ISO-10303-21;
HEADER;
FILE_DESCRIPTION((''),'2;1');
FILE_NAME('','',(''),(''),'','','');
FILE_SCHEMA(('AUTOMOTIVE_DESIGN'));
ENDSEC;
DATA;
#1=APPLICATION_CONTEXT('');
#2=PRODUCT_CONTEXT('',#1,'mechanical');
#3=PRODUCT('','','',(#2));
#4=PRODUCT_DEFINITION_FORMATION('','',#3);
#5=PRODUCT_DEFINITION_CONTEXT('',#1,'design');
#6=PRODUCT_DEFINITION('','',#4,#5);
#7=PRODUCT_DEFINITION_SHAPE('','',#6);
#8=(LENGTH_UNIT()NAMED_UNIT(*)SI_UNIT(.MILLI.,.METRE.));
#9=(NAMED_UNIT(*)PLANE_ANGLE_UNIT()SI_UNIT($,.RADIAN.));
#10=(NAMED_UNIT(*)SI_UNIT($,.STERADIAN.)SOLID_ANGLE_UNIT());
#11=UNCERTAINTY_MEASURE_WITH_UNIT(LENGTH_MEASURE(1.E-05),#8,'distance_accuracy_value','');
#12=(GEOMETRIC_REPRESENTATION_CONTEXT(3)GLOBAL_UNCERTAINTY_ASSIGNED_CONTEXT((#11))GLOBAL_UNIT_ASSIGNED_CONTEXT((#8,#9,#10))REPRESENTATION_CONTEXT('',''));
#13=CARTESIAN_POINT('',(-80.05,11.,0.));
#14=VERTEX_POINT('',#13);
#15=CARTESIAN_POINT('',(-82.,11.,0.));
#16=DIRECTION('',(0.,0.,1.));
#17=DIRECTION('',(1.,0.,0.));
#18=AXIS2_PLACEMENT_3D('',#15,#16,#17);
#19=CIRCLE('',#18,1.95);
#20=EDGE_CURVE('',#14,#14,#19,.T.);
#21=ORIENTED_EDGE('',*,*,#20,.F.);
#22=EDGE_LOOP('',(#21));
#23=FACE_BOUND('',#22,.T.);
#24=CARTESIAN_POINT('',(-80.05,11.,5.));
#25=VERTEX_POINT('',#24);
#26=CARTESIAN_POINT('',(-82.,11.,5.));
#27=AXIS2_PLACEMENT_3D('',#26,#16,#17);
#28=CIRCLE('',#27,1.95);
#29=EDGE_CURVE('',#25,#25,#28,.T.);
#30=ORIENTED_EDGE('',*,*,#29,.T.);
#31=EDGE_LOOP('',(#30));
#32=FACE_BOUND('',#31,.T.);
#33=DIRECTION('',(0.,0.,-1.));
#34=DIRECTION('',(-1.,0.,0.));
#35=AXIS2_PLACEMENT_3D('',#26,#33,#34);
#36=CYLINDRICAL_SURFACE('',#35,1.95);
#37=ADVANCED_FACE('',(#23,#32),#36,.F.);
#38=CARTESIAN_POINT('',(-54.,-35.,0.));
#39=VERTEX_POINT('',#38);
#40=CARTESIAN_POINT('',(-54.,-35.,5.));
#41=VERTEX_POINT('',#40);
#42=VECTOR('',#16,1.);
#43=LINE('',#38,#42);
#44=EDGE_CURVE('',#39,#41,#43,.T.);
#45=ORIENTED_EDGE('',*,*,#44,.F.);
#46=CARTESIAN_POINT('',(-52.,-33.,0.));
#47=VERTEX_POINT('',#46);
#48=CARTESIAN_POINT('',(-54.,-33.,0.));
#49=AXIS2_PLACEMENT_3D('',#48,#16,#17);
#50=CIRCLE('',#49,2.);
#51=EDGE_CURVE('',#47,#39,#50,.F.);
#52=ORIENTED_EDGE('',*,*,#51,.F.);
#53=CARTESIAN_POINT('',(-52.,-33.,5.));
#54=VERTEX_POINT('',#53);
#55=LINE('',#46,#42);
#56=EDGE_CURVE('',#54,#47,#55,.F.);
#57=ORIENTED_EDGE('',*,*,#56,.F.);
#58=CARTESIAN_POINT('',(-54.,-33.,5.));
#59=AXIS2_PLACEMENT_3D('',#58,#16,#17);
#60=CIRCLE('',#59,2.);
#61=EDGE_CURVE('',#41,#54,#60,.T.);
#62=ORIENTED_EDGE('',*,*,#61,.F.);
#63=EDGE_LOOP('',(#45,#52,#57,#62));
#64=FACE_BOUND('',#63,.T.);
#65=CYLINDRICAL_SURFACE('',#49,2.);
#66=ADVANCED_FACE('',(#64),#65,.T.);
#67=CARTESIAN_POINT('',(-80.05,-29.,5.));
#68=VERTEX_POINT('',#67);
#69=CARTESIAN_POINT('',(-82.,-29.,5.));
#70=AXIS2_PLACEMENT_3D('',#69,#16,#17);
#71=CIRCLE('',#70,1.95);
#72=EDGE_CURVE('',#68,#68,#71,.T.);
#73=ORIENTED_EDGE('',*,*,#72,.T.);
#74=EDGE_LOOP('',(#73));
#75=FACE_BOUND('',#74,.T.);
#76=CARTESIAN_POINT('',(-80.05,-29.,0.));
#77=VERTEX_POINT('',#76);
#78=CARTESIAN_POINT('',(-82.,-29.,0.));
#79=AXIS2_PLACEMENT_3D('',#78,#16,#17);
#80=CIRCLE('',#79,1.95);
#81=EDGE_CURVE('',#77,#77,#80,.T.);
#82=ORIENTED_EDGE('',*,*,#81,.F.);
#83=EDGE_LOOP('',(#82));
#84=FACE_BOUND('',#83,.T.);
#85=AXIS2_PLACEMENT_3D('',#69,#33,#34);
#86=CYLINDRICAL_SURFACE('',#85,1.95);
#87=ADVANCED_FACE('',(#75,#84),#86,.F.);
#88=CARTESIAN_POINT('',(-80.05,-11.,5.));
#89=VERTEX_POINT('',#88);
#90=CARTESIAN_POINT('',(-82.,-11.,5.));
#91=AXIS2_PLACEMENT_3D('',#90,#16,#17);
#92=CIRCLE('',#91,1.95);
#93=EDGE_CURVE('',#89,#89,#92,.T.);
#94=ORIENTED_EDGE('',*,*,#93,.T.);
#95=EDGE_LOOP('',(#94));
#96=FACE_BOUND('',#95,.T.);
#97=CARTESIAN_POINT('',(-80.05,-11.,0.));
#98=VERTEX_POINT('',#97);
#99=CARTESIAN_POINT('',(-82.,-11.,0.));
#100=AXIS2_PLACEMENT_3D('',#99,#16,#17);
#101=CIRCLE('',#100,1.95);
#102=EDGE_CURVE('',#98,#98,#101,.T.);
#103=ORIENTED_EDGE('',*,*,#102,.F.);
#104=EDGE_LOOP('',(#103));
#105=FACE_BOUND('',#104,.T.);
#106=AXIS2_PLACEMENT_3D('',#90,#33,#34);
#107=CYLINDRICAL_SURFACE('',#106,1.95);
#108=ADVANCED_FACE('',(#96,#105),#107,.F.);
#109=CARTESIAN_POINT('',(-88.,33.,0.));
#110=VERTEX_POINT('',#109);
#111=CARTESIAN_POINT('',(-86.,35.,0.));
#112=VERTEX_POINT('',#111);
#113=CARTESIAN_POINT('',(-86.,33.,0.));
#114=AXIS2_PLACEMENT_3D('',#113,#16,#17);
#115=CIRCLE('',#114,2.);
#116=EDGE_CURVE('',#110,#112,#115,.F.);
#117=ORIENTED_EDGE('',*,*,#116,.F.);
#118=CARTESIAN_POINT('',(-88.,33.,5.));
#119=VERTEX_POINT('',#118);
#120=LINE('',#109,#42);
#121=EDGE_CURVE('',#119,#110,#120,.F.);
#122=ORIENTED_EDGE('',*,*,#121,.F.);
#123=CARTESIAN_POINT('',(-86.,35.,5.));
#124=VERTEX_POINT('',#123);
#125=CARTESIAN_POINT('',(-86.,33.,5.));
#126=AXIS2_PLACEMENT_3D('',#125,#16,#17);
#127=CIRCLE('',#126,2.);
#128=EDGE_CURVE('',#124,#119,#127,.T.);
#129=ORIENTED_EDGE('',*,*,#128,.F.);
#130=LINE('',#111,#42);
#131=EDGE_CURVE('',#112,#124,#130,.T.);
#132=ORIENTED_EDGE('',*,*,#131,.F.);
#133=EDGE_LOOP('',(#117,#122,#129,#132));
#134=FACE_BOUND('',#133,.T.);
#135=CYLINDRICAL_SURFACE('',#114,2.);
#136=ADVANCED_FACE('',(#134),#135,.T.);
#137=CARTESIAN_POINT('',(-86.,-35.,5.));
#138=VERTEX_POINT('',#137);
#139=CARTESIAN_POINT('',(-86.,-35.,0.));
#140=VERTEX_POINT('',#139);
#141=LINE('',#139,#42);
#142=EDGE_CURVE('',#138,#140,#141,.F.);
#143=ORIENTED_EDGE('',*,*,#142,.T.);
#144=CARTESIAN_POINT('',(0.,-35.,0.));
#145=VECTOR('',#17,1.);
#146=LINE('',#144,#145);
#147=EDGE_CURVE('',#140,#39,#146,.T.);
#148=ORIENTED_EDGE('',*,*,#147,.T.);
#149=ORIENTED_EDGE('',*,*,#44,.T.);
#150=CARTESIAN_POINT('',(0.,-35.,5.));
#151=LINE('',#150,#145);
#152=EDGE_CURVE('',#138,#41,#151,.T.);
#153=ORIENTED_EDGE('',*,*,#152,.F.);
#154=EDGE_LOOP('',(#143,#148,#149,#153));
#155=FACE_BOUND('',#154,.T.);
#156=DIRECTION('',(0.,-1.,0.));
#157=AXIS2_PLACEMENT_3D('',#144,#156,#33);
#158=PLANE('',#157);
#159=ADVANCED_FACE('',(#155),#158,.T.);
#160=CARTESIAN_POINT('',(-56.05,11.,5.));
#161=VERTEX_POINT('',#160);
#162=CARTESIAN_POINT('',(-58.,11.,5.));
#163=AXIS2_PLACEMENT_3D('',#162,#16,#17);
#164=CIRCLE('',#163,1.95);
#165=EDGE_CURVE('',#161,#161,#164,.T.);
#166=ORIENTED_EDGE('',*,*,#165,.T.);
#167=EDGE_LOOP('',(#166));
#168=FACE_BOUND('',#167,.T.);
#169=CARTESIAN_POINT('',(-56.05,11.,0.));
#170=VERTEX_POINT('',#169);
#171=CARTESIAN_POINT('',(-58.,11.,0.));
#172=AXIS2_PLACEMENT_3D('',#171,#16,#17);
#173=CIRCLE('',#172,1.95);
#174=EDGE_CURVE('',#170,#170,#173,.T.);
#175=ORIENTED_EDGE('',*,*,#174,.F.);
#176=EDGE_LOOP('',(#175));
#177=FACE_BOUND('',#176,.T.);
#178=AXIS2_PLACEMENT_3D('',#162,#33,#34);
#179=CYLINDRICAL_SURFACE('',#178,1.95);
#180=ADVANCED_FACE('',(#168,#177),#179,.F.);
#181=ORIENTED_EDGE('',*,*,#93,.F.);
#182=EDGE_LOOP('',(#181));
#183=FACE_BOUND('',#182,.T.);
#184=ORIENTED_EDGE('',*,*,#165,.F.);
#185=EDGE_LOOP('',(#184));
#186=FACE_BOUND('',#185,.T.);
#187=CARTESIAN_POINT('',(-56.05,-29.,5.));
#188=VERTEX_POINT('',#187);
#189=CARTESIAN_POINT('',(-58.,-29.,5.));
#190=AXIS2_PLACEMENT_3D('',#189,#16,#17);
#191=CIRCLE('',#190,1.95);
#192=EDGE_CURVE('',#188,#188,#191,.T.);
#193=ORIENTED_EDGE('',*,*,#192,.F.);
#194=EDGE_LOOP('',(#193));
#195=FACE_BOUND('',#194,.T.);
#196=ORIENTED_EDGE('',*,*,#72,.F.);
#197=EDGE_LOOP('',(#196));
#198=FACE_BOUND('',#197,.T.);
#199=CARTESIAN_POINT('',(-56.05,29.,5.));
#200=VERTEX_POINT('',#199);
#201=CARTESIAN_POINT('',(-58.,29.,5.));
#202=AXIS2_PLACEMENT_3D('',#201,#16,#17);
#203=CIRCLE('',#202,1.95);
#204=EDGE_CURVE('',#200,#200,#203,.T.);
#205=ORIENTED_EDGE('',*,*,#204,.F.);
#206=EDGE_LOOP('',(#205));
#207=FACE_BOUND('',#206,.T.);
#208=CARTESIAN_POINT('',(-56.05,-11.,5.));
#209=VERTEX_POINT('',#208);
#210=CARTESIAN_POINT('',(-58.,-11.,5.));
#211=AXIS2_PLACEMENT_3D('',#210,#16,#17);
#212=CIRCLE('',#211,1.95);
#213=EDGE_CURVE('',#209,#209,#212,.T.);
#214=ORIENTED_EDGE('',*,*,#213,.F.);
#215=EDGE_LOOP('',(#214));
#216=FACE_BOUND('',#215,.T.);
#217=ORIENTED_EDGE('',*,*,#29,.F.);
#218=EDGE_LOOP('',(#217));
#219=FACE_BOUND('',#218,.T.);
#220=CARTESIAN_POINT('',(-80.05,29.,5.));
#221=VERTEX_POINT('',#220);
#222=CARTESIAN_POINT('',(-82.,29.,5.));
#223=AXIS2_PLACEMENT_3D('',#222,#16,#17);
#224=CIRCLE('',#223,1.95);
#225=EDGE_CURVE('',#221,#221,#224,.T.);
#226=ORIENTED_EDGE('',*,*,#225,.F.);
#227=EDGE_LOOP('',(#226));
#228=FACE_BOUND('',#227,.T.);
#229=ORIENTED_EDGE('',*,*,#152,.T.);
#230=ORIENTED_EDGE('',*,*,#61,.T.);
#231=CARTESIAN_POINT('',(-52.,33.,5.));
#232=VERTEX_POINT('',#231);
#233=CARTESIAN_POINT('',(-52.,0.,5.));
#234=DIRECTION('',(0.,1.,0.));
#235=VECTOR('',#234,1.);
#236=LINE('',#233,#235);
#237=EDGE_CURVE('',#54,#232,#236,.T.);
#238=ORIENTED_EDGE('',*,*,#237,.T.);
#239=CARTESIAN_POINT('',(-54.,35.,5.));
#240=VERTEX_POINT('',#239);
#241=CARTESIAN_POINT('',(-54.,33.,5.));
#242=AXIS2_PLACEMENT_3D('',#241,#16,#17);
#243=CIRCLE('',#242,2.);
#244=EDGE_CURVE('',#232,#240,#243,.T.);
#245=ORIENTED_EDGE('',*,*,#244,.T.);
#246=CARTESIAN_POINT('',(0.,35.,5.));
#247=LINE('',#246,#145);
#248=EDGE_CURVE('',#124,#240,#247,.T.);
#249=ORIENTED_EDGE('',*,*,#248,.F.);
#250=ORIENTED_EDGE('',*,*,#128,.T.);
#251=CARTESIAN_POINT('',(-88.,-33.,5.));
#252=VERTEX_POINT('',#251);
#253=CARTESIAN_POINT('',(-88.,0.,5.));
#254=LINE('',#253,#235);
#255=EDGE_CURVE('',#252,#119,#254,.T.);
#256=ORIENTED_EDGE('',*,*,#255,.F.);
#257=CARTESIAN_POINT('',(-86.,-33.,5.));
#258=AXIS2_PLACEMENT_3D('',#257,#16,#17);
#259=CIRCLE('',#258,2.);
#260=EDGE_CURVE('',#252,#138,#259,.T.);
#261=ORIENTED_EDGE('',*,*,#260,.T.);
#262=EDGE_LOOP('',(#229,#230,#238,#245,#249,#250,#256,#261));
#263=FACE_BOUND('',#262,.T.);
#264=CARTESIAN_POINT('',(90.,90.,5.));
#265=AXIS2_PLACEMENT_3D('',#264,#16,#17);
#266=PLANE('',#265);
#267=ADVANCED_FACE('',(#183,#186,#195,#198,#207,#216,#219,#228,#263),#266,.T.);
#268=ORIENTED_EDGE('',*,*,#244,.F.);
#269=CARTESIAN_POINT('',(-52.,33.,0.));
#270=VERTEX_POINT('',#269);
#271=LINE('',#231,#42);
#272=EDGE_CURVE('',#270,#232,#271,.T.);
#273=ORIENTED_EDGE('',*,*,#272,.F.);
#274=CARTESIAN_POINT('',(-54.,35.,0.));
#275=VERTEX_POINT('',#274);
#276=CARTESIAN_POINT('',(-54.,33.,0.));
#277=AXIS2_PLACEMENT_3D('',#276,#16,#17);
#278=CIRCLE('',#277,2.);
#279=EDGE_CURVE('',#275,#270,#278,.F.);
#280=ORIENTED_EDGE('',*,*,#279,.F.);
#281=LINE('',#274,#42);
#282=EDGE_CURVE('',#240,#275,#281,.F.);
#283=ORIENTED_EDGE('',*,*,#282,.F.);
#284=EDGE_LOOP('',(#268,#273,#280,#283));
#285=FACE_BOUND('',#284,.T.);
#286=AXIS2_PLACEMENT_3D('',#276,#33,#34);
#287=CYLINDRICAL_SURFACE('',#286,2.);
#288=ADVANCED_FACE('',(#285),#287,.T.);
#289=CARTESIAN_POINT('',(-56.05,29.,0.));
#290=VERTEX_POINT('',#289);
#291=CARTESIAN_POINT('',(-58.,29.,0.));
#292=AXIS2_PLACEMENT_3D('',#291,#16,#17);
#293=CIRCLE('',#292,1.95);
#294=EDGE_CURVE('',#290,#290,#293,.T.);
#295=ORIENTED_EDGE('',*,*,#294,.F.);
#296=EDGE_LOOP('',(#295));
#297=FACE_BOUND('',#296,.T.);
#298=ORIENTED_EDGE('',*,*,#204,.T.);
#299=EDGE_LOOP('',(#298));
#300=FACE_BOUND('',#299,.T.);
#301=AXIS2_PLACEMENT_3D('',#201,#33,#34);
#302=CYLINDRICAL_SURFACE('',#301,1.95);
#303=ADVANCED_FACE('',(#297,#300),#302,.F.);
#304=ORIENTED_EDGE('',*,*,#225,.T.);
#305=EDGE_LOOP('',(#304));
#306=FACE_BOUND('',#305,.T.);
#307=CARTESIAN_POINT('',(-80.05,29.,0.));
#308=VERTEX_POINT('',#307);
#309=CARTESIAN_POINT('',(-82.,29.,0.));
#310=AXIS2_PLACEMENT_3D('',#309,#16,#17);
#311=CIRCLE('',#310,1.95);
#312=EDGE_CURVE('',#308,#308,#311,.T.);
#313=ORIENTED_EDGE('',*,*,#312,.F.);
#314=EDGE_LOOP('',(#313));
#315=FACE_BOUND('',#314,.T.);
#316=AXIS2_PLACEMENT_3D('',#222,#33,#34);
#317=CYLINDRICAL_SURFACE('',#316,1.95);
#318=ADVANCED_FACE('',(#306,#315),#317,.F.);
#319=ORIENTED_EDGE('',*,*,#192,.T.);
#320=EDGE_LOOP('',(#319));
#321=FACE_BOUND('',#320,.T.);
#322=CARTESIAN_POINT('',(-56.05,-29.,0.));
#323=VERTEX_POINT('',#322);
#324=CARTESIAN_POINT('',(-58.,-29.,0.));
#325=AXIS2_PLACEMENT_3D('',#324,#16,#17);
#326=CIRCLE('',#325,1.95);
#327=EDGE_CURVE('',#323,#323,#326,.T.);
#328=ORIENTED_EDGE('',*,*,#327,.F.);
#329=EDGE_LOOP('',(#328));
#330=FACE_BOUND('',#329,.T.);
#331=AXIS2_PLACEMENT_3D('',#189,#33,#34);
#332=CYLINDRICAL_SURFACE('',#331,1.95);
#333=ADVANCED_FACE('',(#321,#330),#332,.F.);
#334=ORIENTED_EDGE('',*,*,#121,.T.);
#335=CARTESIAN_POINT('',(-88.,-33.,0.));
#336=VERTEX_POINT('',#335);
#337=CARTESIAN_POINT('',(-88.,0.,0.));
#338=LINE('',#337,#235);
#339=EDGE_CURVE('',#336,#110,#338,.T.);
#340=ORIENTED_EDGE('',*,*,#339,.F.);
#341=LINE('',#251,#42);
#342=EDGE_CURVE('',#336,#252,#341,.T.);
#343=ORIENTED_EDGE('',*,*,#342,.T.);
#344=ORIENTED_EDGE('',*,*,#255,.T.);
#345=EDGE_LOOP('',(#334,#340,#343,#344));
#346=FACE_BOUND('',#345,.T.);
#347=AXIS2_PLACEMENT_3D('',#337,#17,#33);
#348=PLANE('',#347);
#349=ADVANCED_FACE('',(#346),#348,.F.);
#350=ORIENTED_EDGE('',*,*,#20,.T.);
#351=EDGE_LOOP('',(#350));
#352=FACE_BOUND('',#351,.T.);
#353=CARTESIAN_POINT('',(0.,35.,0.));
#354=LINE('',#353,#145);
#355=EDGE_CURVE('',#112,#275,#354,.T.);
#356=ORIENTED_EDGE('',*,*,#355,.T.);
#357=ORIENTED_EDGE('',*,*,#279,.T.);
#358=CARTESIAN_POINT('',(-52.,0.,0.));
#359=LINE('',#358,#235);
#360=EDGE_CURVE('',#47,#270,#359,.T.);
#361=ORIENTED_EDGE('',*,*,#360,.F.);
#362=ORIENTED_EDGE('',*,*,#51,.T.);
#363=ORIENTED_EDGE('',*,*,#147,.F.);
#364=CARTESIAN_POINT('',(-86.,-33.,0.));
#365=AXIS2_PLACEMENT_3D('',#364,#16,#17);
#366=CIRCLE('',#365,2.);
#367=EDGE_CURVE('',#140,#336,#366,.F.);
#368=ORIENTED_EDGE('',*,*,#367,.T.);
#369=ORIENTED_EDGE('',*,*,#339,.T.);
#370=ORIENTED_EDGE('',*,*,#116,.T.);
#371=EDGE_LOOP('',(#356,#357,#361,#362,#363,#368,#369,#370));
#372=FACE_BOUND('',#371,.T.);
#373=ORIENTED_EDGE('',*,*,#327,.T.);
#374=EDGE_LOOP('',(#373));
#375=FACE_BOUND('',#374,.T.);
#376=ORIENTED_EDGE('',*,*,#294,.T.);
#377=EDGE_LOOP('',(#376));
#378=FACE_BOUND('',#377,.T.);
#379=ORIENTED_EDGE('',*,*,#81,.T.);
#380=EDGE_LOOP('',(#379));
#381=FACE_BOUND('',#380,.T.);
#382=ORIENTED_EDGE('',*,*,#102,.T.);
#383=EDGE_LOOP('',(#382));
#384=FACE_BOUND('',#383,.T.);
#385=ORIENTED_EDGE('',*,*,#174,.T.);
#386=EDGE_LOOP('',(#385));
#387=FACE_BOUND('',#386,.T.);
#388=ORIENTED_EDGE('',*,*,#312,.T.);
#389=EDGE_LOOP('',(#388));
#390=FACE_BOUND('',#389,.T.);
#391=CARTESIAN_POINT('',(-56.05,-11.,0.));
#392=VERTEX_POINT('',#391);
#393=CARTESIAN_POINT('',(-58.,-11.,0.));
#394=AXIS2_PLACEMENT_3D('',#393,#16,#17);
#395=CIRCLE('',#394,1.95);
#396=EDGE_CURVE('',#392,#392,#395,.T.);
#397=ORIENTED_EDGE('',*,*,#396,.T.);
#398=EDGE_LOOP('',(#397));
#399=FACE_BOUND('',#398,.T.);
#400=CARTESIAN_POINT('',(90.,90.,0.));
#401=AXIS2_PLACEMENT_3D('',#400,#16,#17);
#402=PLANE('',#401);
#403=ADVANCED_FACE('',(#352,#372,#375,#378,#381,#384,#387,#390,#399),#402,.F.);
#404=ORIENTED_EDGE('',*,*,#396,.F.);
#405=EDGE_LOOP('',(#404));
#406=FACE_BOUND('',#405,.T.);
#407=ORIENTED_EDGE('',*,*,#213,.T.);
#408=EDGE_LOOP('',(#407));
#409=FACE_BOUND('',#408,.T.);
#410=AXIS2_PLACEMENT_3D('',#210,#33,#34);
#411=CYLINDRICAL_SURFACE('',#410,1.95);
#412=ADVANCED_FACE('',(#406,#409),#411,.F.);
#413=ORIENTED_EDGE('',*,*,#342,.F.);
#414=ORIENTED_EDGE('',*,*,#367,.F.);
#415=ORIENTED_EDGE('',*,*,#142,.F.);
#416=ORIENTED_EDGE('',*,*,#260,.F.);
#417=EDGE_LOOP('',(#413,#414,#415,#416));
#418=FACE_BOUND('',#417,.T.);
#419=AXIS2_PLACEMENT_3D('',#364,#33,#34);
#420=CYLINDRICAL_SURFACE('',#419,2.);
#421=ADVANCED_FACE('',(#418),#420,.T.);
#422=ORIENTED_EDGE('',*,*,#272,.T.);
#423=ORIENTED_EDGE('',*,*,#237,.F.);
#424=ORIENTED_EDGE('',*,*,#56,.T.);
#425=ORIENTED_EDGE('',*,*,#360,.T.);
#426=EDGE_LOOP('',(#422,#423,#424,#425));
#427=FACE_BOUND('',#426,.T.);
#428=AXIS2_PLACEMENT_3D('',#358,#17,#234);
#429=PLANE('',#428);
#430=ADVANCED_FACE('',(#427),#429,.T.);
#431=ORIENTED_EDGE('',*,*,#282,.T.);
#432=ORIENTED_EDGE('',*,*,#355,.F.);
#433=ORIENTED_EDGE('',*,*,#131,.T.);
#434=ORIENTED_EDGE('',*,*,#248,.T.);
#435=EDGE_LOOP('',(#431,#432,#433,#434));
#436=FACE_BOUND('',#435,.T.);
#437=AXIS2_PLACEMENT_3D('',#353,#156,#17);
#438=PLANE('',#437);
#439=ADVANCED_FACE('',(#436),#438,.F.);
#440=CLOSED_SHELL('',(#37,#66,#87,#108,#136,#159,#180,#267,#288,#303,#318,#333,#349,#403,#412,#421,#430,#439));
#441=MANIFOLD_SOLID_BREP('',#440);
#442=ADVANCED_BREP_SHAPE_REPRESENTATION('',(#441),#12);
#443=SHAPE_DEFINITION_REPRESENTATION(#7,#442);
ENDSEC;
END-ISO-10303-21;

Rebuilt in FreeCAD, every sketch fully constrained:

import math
import FreeCAD as App
import Part
import Sketcher

V = App.Vector
Q = App.Units.Quantity


def edges_at(feature, points):
    """Names of the edges that pass closest to the given points."""
    edges = feature.Shape.Edges
    near = lambda p: min(range(len(edges)), key=lambda i: edges[i].distToShape(Part.Vertex(*p))[0])
    return sorted({f"Edge{near(p) + 1}" for p in points})


def add_polygon(sketch, points):
    """Adds a closed chain of lines whose ends are joined by coincident constraints."""
    first, n = sketch.GeometryCount, len(points)
    for a, b in zip(points, points[1:] + points[:1]):
        sketch.addGeometry(Part.LineSegment(App.Vector(*a, 0), App.Vector(*b, 0)), False)
    for i in range(n):
        sketch.addConstraint(Sketcher.Constraint("Coincident", first + i, 2, first + (i + 1) % n, 1))

doc = App.newDocument("Part")
body = doc.addObject("PartDesign::Body", "Body")

sketch1 = body.newObject("Sketcher::SketchObject", "Sketch")
sketch1.AttachmentSupport = (doc.getObject("XY_Plane"), [""])
sketch1.MapMode = "FlatFace"
sketch1.addGeometry(Part.LineSegment(V(-70, 100, 0), V(-90, 100, 0)), False)
sketch1.addGeometry(Part.ArcOfCircle(Part.Circle(V(-90, 90, 0), V(0, 0, 1), 10), math.radians(90), math.radians(180)), False)
sketch1.addGeometry(Part.LineSegment(V(-100, 90, 0), V(-100, 29, 0)), False)
sketch1.addGeometry(Part.LineSegment(V(-100, 29, 0), V(-93.4, 9.8, 0)), False)
sketch1.addGeometry(Part.ArcOfCircle(Part.Circle(V(-121.7, 0, 0), V(0, 0, 1), 30), math.radians(-19), math.radians(19)), False)
sketch1.addGeometry(Part.LineSegment(V(-93.4, -9.8, 0), V(-100, -29, 0)), False)
sketch1.addGeometry(Part.LineSegment(V(-100, -29, 0), V(-100, -90, 0)), False)
sketch1.addGeometry(Part.ArcOfCircle(Part.Circle(V(-90, -90, 0), V(0, 0, 1), 10), math.radians(180), math.radians(270)), False)
sketch1.addGeometry(Part.LineSegment(V(-90, -100, 0), V(-70, -100, 0)), False)
sketch1.addGeometry(Part.LineSegment(V(-70, -100, 0), V(-14.9, -68.5, 0)), False)
sketch1.addGeometry(Part.ArcOfCircle(Part.Circle(V(0, -94.6, 0), V(0, 0, 1), 30), math.radians(60), math.radians(120)), False)
sketch1.addGeometry(Part.LineSegment(V(14.9, -68.5, 0), V(70, -100, 0)), False)
sketch1.addGeometry(Part.LineSegment(V(70, -100, 0), V(90, -100, 0)), False)
sketch1.addGeometry(Part.ArcOfCircle(Part.Circle(V(90, -90, 0), V(0, 0, 1), 10), math.radians(-90), math.radians(0)), False)
sketch1.addGeometry(Part.LineSegment(V(100, -90, 0), V(100, -29, 0)), False)
sketch1.addGeometry(Part.LineSegment(V(100, -29, 0), V(93.4, -9.8, 0)), False)
sketch1.addGeometry(Part.ArcOfCircle(Part.Circle(V(121.7, 0, 0), V(0, 0, 1), 30), math.radians(161), math.radians(199)), False)
sketch1.addGeometry(Part.LineSegment(V(93.4, 9.8, 0), V(100, 29, 0)), False)
sketch1.addGeometry(Part.LineSegment(V(100, 29, 0), V(100, 90, 0)), False)
sketch1.addGeometry(Part.ArcOfCircle(Part.Circle(V(90, 90, 0), V(0, 0, 1), 10), math.radians(0), math.radians(90)), False)
sketch1.addGeometry(Part.LineSegment(V(90, 100, 0), V(70, 100, 0)), False)
sketch1.addGeometry(Part.LineSegment(V(70, 100, 0), V(14.9, 68.5, 0)), False)
sketch1.addGeometry(Part.ArcOfCircle(Part.Circle(V(0, 94.6, 0), V(0, 0, 1), 30), math.radians(-120), math.radians(-60)), False)
sketch1.addGeometry(Part.LineSegment(V(-14.9, 68.5, 0), V(-70, 100, 0)), False)
sketch1.addGeometry(Part.Circle(V(91.9, -91.9, 0), V(0, 0, 1), 2), False)
sketch1.addGeometry(Part.Circle(V(82, -29, 0), V(0, 0, 1), 1.9), False)
sketch1.addGeometry(Part.Circle(V(58, -29, 0), V(0, 0, 1), 1.9), False)
sketch1.addGeometry(Part.Circle(V(82, -11, 0), V(0, 0, 1), 1.9), False)
sketch1.addGeometry(Part.Circle(V(58, -11, 0), V(0, 0, 1), 1.9), False)
sketch1.addGeometry(Part.Circle(V(6, -10, 0), V(0, 0, 1), 1.5), False)
sketch1.addGeometry(Part.Circle(V(-91.9, -91.9, 0), V(0, 0, 1), 2), False)
sketch1.addGeometry(Part.Circle(V(-6, -10, 0), V(0, 0, 1), 1.5), False)
sketch1.addGeometry(Part.Circle(V(-58, -29, 0), V(0, 0, 1), 1.9), False)
sketch1.addGeometry(Part.Circle(V(-82, -29, 0), V(0, 0, 1), 1.9), False)
sketch1.addGeometry(Part.Circle(V(-58, -11, 0), V(0, 0, 1), 1.9), False)
sketch1.addGeometry(Part.Circle(V(-82, -11, 0), V(0, 0, 1), 1.9), False)
sketch1.addGeometry(Part.Circle(V(82, 11, 0), V(0, 0, 1), 1.9), False)
sketch1.addGeometry(Part.Circle(V(58, 11, 0), V(0, 0, 1), 1.9), False)
sketch1.addGeometry(Part.Circle(V(82, 29, 0), V(0, 0, 1), 1.9), False)
sketch1.addGeometry(Part.Circle(V(58, 29, 0), V(0, 0, 1), 1.9), False)
sketch1.addGeometry(Part.Circle(V(6, 10, 0), V(0, 0, 1), 1.5), False)
sketch1.addGeometry(Part.Circle(V(91.9, 91.9, 0), V(0, 0, 1), 2), False)
sketch1.addGeometry(Part.Circle(V(-6, 10, 0), V(0, 0, 1), 1.5), False)
sketch1.addGeometry(Part.Circle(V(-58, 11, 0), V(0, 0, 1), 1.9), False)
sketch1.addGeometry(Part.Circle(V(-82, 11, 0), V(0, 0, 1), 1.9), False)
sketch1.addGeometry(Part.Circle(V(-58, 29, 0), V(0, 0, 1), 1.9), False)
sketch1.addGeometry(Part.Circle(V(-82, 29, 0), V(0, 0, 1), 1.9), False)
sketch1.addGeometry(Part.Circle(V(-91.9, 91.9, 0), V(0, 0, 1), 2), False)
sketch1.addConstraint(Sketcher.Constraint("Tangent", 0, 2, 1, 1))
sketch1.addConstraint(Sketcher.Constraint("Tangent", 1, 2, 2, 1))
sketch1.addConstraint(Sketcher.Constraint("Coincident", 2, 2, 3, 1))
sketch1.addConstraint(Sketcher.Constraint("Tangent", 3, 2, 4, 2))
sketch1.addConstraint(Sketcher.Constraint("Tangent", 4, 1, 5, 1))
sketch1.addConstraint(Sketcher.Constraint("Coincident", 5, 2, 6, 1))
sketch1.addConstraint(Sketcher.Constraint("Tangent", 6, 2, 7, 1))
sketch1.addConstraint(Sketcher.Constraint("Tangent", 7, 2, 8, 1))
sketch1.addConstraint(Sketcher.Constraint("Coincident", 8, 2, 9, 1))
sketch1.addConstraint(Sketcher.Constraint("Tangent", 9, 2, 10, 2))
sketch1.addConstraint(Sketcher.Constraint("Tangent", 10, 1, 11, 1))
sketch1.addConstraint(Sketcher.Constraint("Coincident", 11, 2, 12, 1))
sketch1.addConstraint(Sketcher.Constraint("Tangent", 12, 2, 13, 1))
sketch1.addConstraint(Sketcher.Constraint("Tangent", 13, 2, 14, 1))
sketch1.addConstraint(Sketcher.Constraint("Coincident", 14, 2, 15, 1))
sketch1.addConstraint(Sketcher.Constraint("Tangent", 15, 2, 16, 2))
sketch1.addConstraint(Sketcher.Constraint("Tangent", 16, 1, 17, 1))
sketch1.addConstraint(Sketcher.Constraint("Coincident", 17, 2, 18, 1))
sketch1.addConstraint(Sketcher.Constraint("Tangent", 18, 2, 19, 1))
sketch1.addConstraint(Sketcher.Constraint("Tangent", 19, 2, 20, 1))
sketch1.addConstraint(Sketcher.Constraint("Coincident", 20, 2, 21, 1))
sketch1.addConstraint(Sketcher.Constraint("Tangent", 21, 2, 22, 2))
sketch1.addConstraint(Sketcher.Constraint("Tangent", 22, 1, 23, 1))
sketch1.addConstraint(Sketcher.Constraint("Coincident", 23, 2, 0, 1))
sketch1.addConstraint(Sketcher.Constraint("Horizontal", 0))
sketch1.addConstraint(Sketcher.Constraint("Vertical", 2))
sketch1.addConstraint(Sketcher.Constraint("Vertical", 6))
sketch1.addConstraint(Sketcher.Constraint("Horizontal", 8))
sketch1.addConstraint(Sketcher.Constraint("Horizontal", 12))
sketch1.addConstraint(Sketcher.Constraint("Vertical", 14))
sketch1.addConstraint(Sketcher.Constraint("Vertical", 18))
sketch1.addConstraint(Sketcher.Constraint("Horizontal", 20))
sketch1.addConstraint(Sketcher.Constraint("Equal", 1, 7))
sketch1.addConstraint(Sketcher.Constraint("Equal", 4, 10))
sketch1.addConstraint(Sketcher.Constraint("Equal", 7, 13))
sketch1.addConstraint(Sketcher.Constraint("Equal", 10, 16))
sketch1.addConstraint(Sketcher.Constraint("Equal", 13, 19))
sketch1.addConstraint(Sketcher.Constraint("Equal", 16, 22))
sketch1.addConstraint(Sketcher.Constraint("Equal", 25, 26))
sketch1.addConstraint(Sketcher.Constraint("Equal", 26, 27))
sketch1.addConstraint(Sketcher.Constraint("Equal", 27, 28))
sketch1.addConstraint(Sketcher.Constraint("Equal", 24, 30))
sketch1.addConstraint(Sketcher.Constraint("Equal", 29, 31))
sketch1.addConstraint(Sketcher.Constraint("Equal", 28, 32))
sketch1.addConstraint(Sketcher.Constraint("Equal", 32, 33))
sketch1.addConstraint(Sketcher.Constraint("Equal", 33, 34))
sketch1.addConstraint(Sketcher.Constraint("Equal", 34, 35))
sketch1.addConstraint(Sketcher.Constraint("Equal", 35, 36))
sketch1.addConstraint(Sketcher.Constraint("Equal", 36, 37))
sketch1.addConstraint(Sketcher.Constraint("Equal", 37, 38))
sketch1.addConstraint(Sketcher.Constraint("Equal", 38, 39))
sketch1.addConstraint(Sketcher.Constraint("Equal", 31, 40))
sketch1.addConstraint(Sketcher.Constraint("Equal", 30, 41))
sketch1.addConstraint(Sketcher.Constraint("Equal", 40, 42))
sketch1.addConstraint(Sketcher.Constraint("Equal", 39, 43))
sketch1.addConstraint(Sketcher.Constraint("Equal", 43, 44))
sketch1.addConstraint(Sketcher.Constraint("Equal", 44, 45))
sketch1.addConstraint(Sketcher.Constraint("Equal", 45, 46))
sketch1.addConstraint(Sketcher.Constraint("Equal", 41, 47))
sketch1.addConstraint(Sketcher.Constraint("Symmetric", 1, 3, 13, 3, -1, 1))
sketch1.addConstraint(Sketcher.Constraint("Symmetric", 4, 3, 16, 3, -1, 1))
sketch1.addConstraint(Sketcher.Constraint("Symmetric", 7, 3, 19, 3, -1, 1))
sketch1.addConstraint(Sketcher.Constraint("Symmetric", 10, 3, 22, 3, -1, 1))
sketch1.addConstraint(Sketcher.Constraint("Symmetric", 35, 3, 36, 3, -1, 1))
sketch1.addConstraint(Sketcher.Constraint("Symmetric", 34, 3, 37, 3, -1, 1))
sketch1.addConstraint(Sketcher.Constraint("Symmetric", 33, 3, 38, 3, -1, 1))
sketch1.addConstraint(Sketcher.Constraint("Symmetric", 32, 3, 39, 3, -1, 1))
sketch1.addConstraint(Sketcher.Constraint("Symmetric", 31, 3, 40, 3, -1, 1))
sketch1.addConstraint(Sketcher.Constraint("Symmetric", 30, 3, 41, 3, -1, 1))
sketch1.addConstraint(Sketcher.Constraint("Symmetric", 29, 3, 42, 3, -1, 1))
sketch1.addConstraint(Sketcher.Constraint("Symmetric", 28, 3, 43, 3, -1, 1))
sketch1.addConstraint(Sketcher.Constraint("Symmetric", 27, 3, 44, 3, -1, 1))
sketch1.addConstraint(Sketcher.Constraint("Symmetric", 26, 3, 45, 3, -1, 1))
sketch1.addConstraint(Sketcher.Constraint("Symmetric", 25, 3, 46, 3, -1, 1))
sketch1.addConstraint(Sketcher.Constraint("Symmetric", 24, 3, 47, 3, -1, 1))
sketch1.addConstraint(Sketcher.Constraint("Symmetric", 7, 3, 13, 3, -2))
sketch1.addConstraint(Sketcher.Constraint("Symmetric", 24, 3, 30, 3, -2))
sketch1.addConstraint(Sketcher.Constraint("Symmetric", 29, 3, 31, 3, -2))
sketch1.addConstraint(Sketcher.Constraint("Symmetric", 26, 3, 32, 3, -2))
sketch1.addConstraint(Sketcher.Constraint("Symmetric", 25, 3, 33, 3, -2))
sketch1.addConstraint(Sketcher.Constraint("Symmetric", 28, 3, 34, 3, -2))
sketch1.addConstraint(Sketcher.Constraint("Symmetric", 27, 3, 35, 3, -2))
sketch1.addConstraint(Sketcher.Constraint("Symmetric", 9, 2, 10, 1, -2))
sketch1.addConstraint(Sketcher.Constraint("Symmetric", 4, 1, 15, 2, -2))
sketch1.addConstraint(Sketcher.Constraint("Parallel", 3, 15))
sketch1.addConstraint(Sketcher.Constraint("Parallel", 5, 17))
sketch1.addConstraint(Sketcher.Constraint("Parallel", 9, 21))
sketch1.addConstraint(Sketcher.Constraint("Parallel", 11, 23))
sketch1.addConstraint(Sketcher.Constraint("Horizontal", 25, 3, 26, 3))
sketch1.addConstraint(Sketcher.Constraint("Horizontal", 27, 3, 28, 3))
sketch1.addConstraint(Sketcher.Constraint("Horizontal", 46, 3, 2, 2))
sketch1.addConstraint(Sketcher.Constraint("Vertical", 25, 3, 27, 3))
sketch1.addConstraint(Sketcher.Constraint("Vertical", 26, 3, 28, 3))
sketch1.addConstraint(Sketcher.Constraint("Diameter", 24, Q("4 mm")))
sketch1.addConstraint(Sketcher.Constraint("Diameter", 29, Q("3 mm")))
sketch1.addConstraint(Sketcher.Constraint("Radius", 1, Q("10 mm")))
sketch1.addConstraint(Sketcher.Constraint("Radius", 4, Q("30 mm")))
sketch1.addConstraint(Sketcher.Constraint("Diameter", 25, Q("3.9 mm")))
sketch1.addConstraint(Sketcher.Constraint("DistanceX", 0, 2, 0, 1, Q("20 mm")))
sketch1.addConstraint(Sketcher.Constraint("DistanceY", 2, 2, 2, 1, Q("61 mm")))
sketch1.addConstraint(Sketcher.Constraint("DistanceX", 1, 3, -1, 1, Q("90 mm")))
sketch1.addConstraint(Sketcher.Constraint("DistanceY", -1, 1, 1, 3, Q("90 mm")))
sketch1.addConstraint(Sketcher.Constraint("DistanceX", -1, 1, 25, 3, Q("82 mm")))
sketch1.addConstraint(Sketcher.Constraint("DistanceX", -1, 1, 26, 3, Q("58 mm")))
sketch1.addConstraint(Sketcher.Constraint("DistanceY", 27, 3, -1, 1, Q("11 mm")))
sketch1.addConstraint(Sketcher.Constraint("DistanceX", -1, 1, 29, 3, Q("6 mm")))
sketch1.addConstraint(Sketcher.Constraint("DistanceY", 29, 3, -1, 1, Q("10 mm")))
sketch1.addConstraint(Sketcher.Constraint("Distance", 9, Q("63.47972 mm")))
sketch1.addConstraint(Sketcher.Constraint("DistanceX", -1, 1, 24, 3, Q("91.923882 mm")))
sketch1.addConstraint(Sketcher.Constraint("DistanceY", 24, 3, -1, 1, Q("91.923882 mm")))
sketch1.addConstraint(Sketcher.Constraint("DistanceY", -1, 1, 3, 2, Q("9.77972 mm")))
pad1 = body.newObject("PartDesign::Pad", "Pad")
pad1.Profile = sketch1
pad1.Length = 5

sketch2 = body.newObject("Sketcher::SketchObject", "Sketch001")
sketch2.AttachmentSupport = (doc.getObject("XY_Plane"), [""])
sketch2.MapMode = "FlatFace"
sketch2.AttachmentOffset = App.Placement(V(0, 0, 5), App.Rotation())
sketch2.addGeometry(Part.LineSegment(V(100, 29, 0), V(100, 90, 0)), False)
sketch2.addGeometry(Part.ArcOfCircle(Part.Circle(V(90, 90, 0), V(0, 0, 1), 10), math.radians(0), math.radians(90)), False)
sketch2.addGeometry(Part.LineSegment(V(90, 100, 0), V(70, 100, 0)), False)
sketch2.addGeometry(Part.LineSegment(V(70, 100, 0), V(14.9, 68.5, 0)), False)
sketch2.addGeometry(Part.ArcOfCircle(Part.Circle(V(0, 94.6, 0), V(0, 0, 1), 30), math.radians(-120), math.radians(-60)), False)
sketch2.addGeometry(Part.LineSegment(V(-14.9, 68.5, 0), V(-70, 100, 0)), False)
sketch2.addGeometry(Part.LineSegment(V(-70, 100, 0), V(-90, 100, 0)), False)
sketch2.addGeometry(Part.ArcOfCircle(Part.Circle(V(-90, 90, 0), V(0, 0, 1), 10), math.radians(90), math.radians(180)), False)
sketch2.addGeometry(Part.LineSegment(V(-100, 90, 0), V(-100, 29, 0)), False)
sketch2.addGeometry(Part.LineSegment(V(-100, 29, 0), V(-93.4, 9.8, 0)), False)
sketch2.addGeometry(Part.ArcOfCircle(Part.Circle(V(-121.7, 0, 0), V(0, 0, 1), 30), math.radians(-19), math.radians(19)), False)
sketch2.addGeometry(Part.LineSegment(V(-93.4, -9.8, 0), V(-100, -29, 0)), False)
sketch2.addGeometry(Part.LineSegment(V(-100, -29, 0), V(-100, -90, 0)), False)
sketch2.addGeometry(Part.ArcOfCircle(Part.Circle(V(-90, -90, 0), V(0, 0, 1), 10), math.radians(180), math.radians(270)), False)
sketch2.addGeometry(Part.LineSegment(V(-90, -100, 0), V(-70, -100, 0)), False)
sketch2.addGeometry(Part.LineSegment(V(-70, -100, 0), V(-14.9, -68.5, 0)), False)
sketch2.addGeometry(Part.ArcOfCircle(Part.Circle(V(0, -94.6, 0), V(0, 0, 1), 30), math.radians(60), math.radians(120)), False)
sketch2.addGeometry(Part.LineSegment(V(14.9, -68.5, 0), V(70, -100, 0)), False)
sketch2.addGeometry(Part.LineSegment(V(70, -100, 0), V(90, -100, 0)), False)
sketch2.addGeometry(Part.ArcOfCircle(Part.Circle(V(90, -90, 0), V(0, 0, 1), 10), math.radians(-90), math.radians(0)), False)
sketch2.addGeometry(Part.LineSegment(V(100, -90, 0), V(100, -29, 0)), False)
sketch2.addGeometry(Part.LineSegment(V(100, -29, 0), V(93.4, -9.8, 0)), False)
sketch2.addGeometry(Part.ArcOfCircle(Part.Circle(V(121.7, 0, 0), V(0, 0, 1), 30), math.radians(161), math.radians(199)), False)
sketch2.addGeometry(Part.LineSegment(V(93.4, 9.8, 0), V(100, 29, 0)), False)
add_polygon(sketch2, [(-52, -35), (-88, -35), (-88, 35), (-52, 35)])
sketch2.addGeometry(Part.Circle(V(-6, 10, 0), V(0, 0, 1), 1.5), False)
sketch2.addGeometry(Part.Circle(V(6, -10, 0), V(0, 0, 1), 1.5), False)
sketch2.addGeometry(Part.Circle(V(58, -29, 0), V(0, 0, 1), 1.9), False)
sketch2.addGeometry(Part.Circle(V(82, -29, 0), V(0, 0, 1), 1.9), False)
sketch2.addGeometry(Part.Circle(V(58, -11, 0), V(0, 0, 1), 1.9), False)
sketch2.addGeometry(Part.Circle(V(6, 10, 0), V(0, 0, 1), 1.5), False)
sketch2.addGeometry(Part.Circle(V(82, 11, 0), V(0, 0, 1), 1.9), False)
sketch2.addGeometry(Part.Circle(V(58, 29, 0), V(0, 0, 1), 1.9), False)
sketch2.addGeometry(Part.Circle(V(82, 29, 0), V(0, 0, 1), 1.9), False)
sketch2.addGeometry(Part.Circle(V(-91.9, 91.9, 0), V(0, 0, 1), 2), False)
sketch2.addGeometry(Part.Circle(V(91.9, 91.9, 0), V(0, 0, 1), 2), False)
sketch2.addConstraint(Sketcher.Constraint("Tangent", 0, 2, 1, 1))
sketch2.addConstraint(Sketcher.Constraint("Tangent", 1, 2, 2, 1))
sketch2.addConstraint(Sketcher.Constraint("Coincident", 2, 2, 3, 1))
sketch2.addConstraint(Sketcher.Constraint("Tangent", 3, 2, 4, 2))
sketch2.addConstraint(Sketcher.Constraint("Tangent", 4, 1, 5, 1))
sketch2.addConstraint(Sketcher.Constraint("Coincident", 5, 2, 6, 1))
sketch2.addConstraint(Sketcher.Constraint("Tangent", 6, 2, 7, 1))
sketch2.addConstraint(Sketcher.Constraint("Tangent", 7, 2, 8, 1))
sketch2.addConstraint(Sketcher.Constraint("Coincident", 8, 2, 9, 1))
sketch2.addConstraint(Sketcher.Constraint("Tangent", 9, 2, 10, 2))
sketch2.addConstraint(Sketcher.Constraint("Tangent", 10, 1, 11, 1))
sketch2.addConstraint(Sketcher.Constraint("Coincident", 11, 2, 12, 1))
sketch2.addConstraint(Sketcher.Constraint("Tangent", 12, 2, 13, 1))
sketch2.addConstraint(Sketcher.Constraint("Tangent", 13, 2, 14, 1))
sketch2.addConstraint(Sketcher.Constraint("Coincident", 14, 2, 15, 1))
sketch2.addConstraint(Sketcher.Constraint("Tangent", 15, 2, 16, 2))
sketch2.addConstraint(Sketcher.Constraint("Tangent", 16, 1, 17, 1))
sketch2.addConstraint(Sketcher.Constraint("Coincident", 17, 2, 18, 1))
sketch2.addConstraint(Sketcher.Constraint("Tangent", 18, 2, 19, 1))
sketch2.addConstraint(Sketcher.Constraint("Tangent", 19, 2, 20, 1))
sketch2.addConstraint(Sketcher.Constraint("Coincident", 20, 2, 21, 1))
sketch2.addConstraint(Sketcher.Constraint("Tangent", 21, 2, 22, 2))
sketch2.addConstraint(Sketcher.Constraint("Tangent", 22, 1, 23, 1))
sketch2.addConstraint(Sketcher.Constraint("Coincident", 23, 2, 0, 1))
sketch2.addConstraint(Sketcher.Constraint("Vertical", 0))
sketch2.addConstraint(Sketcher.Constraint("Horizontal", 2))
sketch2.addConstraint(Sketcher.Constraint("Horizontal", 6))
sketch2.addConstraint(Sketcher.Constraint("Vertical", 8))
sketch2.addConstraint(Sketcher.Constraint("Vertical", 12))
sketch2.addConstraint(Sketcher.Constraint("Horizontal", 14))
sketch2.addConstraint(Sketcher.Constraint("Horizontal", 18))
sketch2.addConstraint(Sketcher.Constraint("Vertical", 20))
sketch2.addConstraint(Sketcher.Constraint("Horizontal", 24))
sketch2.addConstraint(Sketcher.Constraint("Vertical", 25))
sketch2.addConstraint(Sketcher.Constraint("Horizontal", 26))
sketch2.addConstraint(Sketcher.Constraint("Vertical", 27))
sketch2.addConstraint(Sketcher.Constraint("Equal", 1, 7))
sketch2.addConstraint(Sketcher.Constraint("Equal", 4, 10))
sketch2.addConstraint(Sketcher.Constraint("Equal", 7, 13))
sketch2.addConstraint(Sketcher.Constraint("Equal", 10, 16))
sketch2.addConstraint(Sketcher.Constraint("Equal", 13, 19))
sketch2.addConstraint(Sketcher.Constraint("Equal", 16, 22))
sketch2.addConstraint(Sketcher.Constraint("Equal", 28, 29))
sketch2.addConstraint(Sketcher.Constraint("Equal", 30, 31))
sketch2.addConstraint(Sketcher.Constraint("Equal", 31, 32))
sketch2.addConstraint(Sketcher.Constraint("Equal", 29, 33))
sketch2.addConstraint(Sketcher.Constraint("Equal", 32, 34))
sketch2.addConstraint(Sketcher.Constraint("Equal", 34, 35))
sketch2.addConstraint(Sketcher.Constraint("Equal", 35, 36))
sketch2.addConstraint(Sketcher.Constraint("Equal", 37, 38))
sketch2.addConstraint(Sketcher.Constraint("Symmetric", 1, 3, 13, 3, -1, 1))
sketch2.addConstraint(Sketcher.Constraint("Symmetric", 4, 3, 16, 3, -1, 1))
sketch2.addConstraint(Sketcher.Constraint("Symmetric", 7, 3, 19, 3, -1, 1))
sketch2.addConstraint(Sketcher.Constraint("Symmetric", 10, 3, 22, 3, -1, 1))
sketch2.addConstraint(Sketcher.Constraint("Symmetric", 28, 3, 29, 3, -1, 1))
sketch2.addConstraint(Sketcher.Constraint("Symmetric", 1, 3, 7, 3, -2))
sketch2.addConstraint(Sketcher.Constraint("Symmetric", 28, 3, 33, 3, -2))
sketch2.addConstraint(Sketcher.Constraint("Symmetric", 37, 3, 38, 3, -2))
sketch2.addConstraint(Sketcher.Constraint("Symmetric", 3, 2, 4, 1, -2))
sketch2.addConstraint(Sketcher.Constraint("Symmetric", 10, 1, 21, 2, -2))
sketch2.addConstraint(Sketcher.Constraint("Symmetric", 30, 3, 35, 3, -1))
sketch2.addConstraint(Sketcher.Constraint("Symmetric", 31, 3, 36, 3, -1))
sketch2.addConstraint(Sketcher.Constraint("Parallel", 3, 15))
sketch2.addConstraint(Sketcher.Constraint("Parallel", 5, 17))
sketch2.addConstraint(Sketcher.Constraint("Parallel", 9, 21))
sketch2.addConstraint(Sketcher.Constraint("Parallel", 11, 23))
sketch2.addConstraint(Sketcher.Constraint("Horizontal", 30, 3, 31, 3))
sketch2.addConstraint(Sketcher.Constraint("Horizontal", 36, 3, 8, 2))
sketch2.addConstraint(Sketcher.Constraint("Vertical", 30, 3, 32, 3))
sketch2.addConstraint(Sketcher.Constraint("Vertical", 31, 3, 34, 3))
sketch2.addConstraint(Sketcher.Constraint("Diameter", 28, Q("3 mm")))
sketch2.addConstraint(Sketcher.Constraint("Diameter", 37, Q("4 mm")))
sketch2.addConstraint(Sketcher.Constraint("Radius", 1, Q("10 mm")))
sketch2.addConstraint(Sketcher.Constraint("Radius", 4, Q("30 mm")))
sketch2.addConstraint(Sketcher.Constraint("Diameter", 30, Q("3.9 mm")))
sketch2.addConstraint(Sketcher.Constraint("DistanceX", 2, 2, 2, 1, Q("20 mm")))
sketch2.addConstraint(Sketcher.Constraint("DistanceX", 24, 2, 24, 1, Q("36 mm")))
sketch2.addConstraint(Sketcher.Constraint("DistanceY", 0, 1, 0, 2, Q("61 mm")))
sketch2.addConstraint(Sketcher.Constraint("DistanceY", 25, 1, 25, 2, Q("70 mm")))
sketch2.addConstraint(Sketcher.Constraint("DistanceX", -1, 1, 1, 3, Q("90 mm")))
sketch2.addConstraint(Sketcher.Constraint("DistanceY", -1, 1, 1, 3, Q("90 mm")))
sketch2.addConstraint(Sketcher.Constraint("DistanceX", 28, 3, -1, 1, Q("6 mm")))
sketch2.addConstraint(Sketcher.Constraint("DistanceY", -1, 1, 28, 3, Q("10 mm")))
sketch2.addConstraint(Sketcher.Constraint("DistanceX", -1, 1, 30, 3, Q("58 mm")))
sketch2.addConstraint(Sketcher.Constraint("DistanceX", -1, 1, 31, 3, Q("82 mm")))
sketch2.addConstraint(Sketcher.Constraint("DistanceY", 32, 3, -1, 1, Q("11 mm")))
sketch2.addConstraint(Sketcher.Constraint("DistanceY", -1, 1, 34, 3, Q("11 mm")))
sketch2.addConstraint(Sketcher.Constraint("DistanceX", 24, 2, -1, 1, Q("88 mm")))
sketch2.addConstraint(Sketcher.Constraint("DistanceY", 24, 2, -1, 1, Q("35 mm")))
sketch2.addConstraint(Sketcher.Constraint("Distance", 3, Q("63.47972 mm")))
sketch2.addConstraint(Sketcher.Constraint("DistanceX", 37, 3, -1, 1, Q("91.923882 mm")))
sketch2.addConstraint(Sketcher.Constraint("DistanceY", -1, 1, 37, 3, Q("91.923882 mm")))
sketch2.addConstraint(Sketcher.Constraint("DistanceY", -1, 1, 9, 2, Q("9.77972 mm")))
pocket1 = body.newObject("PartDesign::Pocket", "Pocket")
pocket1.Profile = sketch2
pocket1.Type = "ThroughAll"
doc.recompute()

fillet = body.newObject("PartDesign::Fillet", "Fillet")
fillet.Base = (pocket1, edges_at(pocket1, [
    (-52, -35, 2.5),
    (-52, 35, 2.5),
    (-88, 35, 2.5),
    (-88, -35, 2.5),
]))
fillet.Radius = 2

doc.recompute()
